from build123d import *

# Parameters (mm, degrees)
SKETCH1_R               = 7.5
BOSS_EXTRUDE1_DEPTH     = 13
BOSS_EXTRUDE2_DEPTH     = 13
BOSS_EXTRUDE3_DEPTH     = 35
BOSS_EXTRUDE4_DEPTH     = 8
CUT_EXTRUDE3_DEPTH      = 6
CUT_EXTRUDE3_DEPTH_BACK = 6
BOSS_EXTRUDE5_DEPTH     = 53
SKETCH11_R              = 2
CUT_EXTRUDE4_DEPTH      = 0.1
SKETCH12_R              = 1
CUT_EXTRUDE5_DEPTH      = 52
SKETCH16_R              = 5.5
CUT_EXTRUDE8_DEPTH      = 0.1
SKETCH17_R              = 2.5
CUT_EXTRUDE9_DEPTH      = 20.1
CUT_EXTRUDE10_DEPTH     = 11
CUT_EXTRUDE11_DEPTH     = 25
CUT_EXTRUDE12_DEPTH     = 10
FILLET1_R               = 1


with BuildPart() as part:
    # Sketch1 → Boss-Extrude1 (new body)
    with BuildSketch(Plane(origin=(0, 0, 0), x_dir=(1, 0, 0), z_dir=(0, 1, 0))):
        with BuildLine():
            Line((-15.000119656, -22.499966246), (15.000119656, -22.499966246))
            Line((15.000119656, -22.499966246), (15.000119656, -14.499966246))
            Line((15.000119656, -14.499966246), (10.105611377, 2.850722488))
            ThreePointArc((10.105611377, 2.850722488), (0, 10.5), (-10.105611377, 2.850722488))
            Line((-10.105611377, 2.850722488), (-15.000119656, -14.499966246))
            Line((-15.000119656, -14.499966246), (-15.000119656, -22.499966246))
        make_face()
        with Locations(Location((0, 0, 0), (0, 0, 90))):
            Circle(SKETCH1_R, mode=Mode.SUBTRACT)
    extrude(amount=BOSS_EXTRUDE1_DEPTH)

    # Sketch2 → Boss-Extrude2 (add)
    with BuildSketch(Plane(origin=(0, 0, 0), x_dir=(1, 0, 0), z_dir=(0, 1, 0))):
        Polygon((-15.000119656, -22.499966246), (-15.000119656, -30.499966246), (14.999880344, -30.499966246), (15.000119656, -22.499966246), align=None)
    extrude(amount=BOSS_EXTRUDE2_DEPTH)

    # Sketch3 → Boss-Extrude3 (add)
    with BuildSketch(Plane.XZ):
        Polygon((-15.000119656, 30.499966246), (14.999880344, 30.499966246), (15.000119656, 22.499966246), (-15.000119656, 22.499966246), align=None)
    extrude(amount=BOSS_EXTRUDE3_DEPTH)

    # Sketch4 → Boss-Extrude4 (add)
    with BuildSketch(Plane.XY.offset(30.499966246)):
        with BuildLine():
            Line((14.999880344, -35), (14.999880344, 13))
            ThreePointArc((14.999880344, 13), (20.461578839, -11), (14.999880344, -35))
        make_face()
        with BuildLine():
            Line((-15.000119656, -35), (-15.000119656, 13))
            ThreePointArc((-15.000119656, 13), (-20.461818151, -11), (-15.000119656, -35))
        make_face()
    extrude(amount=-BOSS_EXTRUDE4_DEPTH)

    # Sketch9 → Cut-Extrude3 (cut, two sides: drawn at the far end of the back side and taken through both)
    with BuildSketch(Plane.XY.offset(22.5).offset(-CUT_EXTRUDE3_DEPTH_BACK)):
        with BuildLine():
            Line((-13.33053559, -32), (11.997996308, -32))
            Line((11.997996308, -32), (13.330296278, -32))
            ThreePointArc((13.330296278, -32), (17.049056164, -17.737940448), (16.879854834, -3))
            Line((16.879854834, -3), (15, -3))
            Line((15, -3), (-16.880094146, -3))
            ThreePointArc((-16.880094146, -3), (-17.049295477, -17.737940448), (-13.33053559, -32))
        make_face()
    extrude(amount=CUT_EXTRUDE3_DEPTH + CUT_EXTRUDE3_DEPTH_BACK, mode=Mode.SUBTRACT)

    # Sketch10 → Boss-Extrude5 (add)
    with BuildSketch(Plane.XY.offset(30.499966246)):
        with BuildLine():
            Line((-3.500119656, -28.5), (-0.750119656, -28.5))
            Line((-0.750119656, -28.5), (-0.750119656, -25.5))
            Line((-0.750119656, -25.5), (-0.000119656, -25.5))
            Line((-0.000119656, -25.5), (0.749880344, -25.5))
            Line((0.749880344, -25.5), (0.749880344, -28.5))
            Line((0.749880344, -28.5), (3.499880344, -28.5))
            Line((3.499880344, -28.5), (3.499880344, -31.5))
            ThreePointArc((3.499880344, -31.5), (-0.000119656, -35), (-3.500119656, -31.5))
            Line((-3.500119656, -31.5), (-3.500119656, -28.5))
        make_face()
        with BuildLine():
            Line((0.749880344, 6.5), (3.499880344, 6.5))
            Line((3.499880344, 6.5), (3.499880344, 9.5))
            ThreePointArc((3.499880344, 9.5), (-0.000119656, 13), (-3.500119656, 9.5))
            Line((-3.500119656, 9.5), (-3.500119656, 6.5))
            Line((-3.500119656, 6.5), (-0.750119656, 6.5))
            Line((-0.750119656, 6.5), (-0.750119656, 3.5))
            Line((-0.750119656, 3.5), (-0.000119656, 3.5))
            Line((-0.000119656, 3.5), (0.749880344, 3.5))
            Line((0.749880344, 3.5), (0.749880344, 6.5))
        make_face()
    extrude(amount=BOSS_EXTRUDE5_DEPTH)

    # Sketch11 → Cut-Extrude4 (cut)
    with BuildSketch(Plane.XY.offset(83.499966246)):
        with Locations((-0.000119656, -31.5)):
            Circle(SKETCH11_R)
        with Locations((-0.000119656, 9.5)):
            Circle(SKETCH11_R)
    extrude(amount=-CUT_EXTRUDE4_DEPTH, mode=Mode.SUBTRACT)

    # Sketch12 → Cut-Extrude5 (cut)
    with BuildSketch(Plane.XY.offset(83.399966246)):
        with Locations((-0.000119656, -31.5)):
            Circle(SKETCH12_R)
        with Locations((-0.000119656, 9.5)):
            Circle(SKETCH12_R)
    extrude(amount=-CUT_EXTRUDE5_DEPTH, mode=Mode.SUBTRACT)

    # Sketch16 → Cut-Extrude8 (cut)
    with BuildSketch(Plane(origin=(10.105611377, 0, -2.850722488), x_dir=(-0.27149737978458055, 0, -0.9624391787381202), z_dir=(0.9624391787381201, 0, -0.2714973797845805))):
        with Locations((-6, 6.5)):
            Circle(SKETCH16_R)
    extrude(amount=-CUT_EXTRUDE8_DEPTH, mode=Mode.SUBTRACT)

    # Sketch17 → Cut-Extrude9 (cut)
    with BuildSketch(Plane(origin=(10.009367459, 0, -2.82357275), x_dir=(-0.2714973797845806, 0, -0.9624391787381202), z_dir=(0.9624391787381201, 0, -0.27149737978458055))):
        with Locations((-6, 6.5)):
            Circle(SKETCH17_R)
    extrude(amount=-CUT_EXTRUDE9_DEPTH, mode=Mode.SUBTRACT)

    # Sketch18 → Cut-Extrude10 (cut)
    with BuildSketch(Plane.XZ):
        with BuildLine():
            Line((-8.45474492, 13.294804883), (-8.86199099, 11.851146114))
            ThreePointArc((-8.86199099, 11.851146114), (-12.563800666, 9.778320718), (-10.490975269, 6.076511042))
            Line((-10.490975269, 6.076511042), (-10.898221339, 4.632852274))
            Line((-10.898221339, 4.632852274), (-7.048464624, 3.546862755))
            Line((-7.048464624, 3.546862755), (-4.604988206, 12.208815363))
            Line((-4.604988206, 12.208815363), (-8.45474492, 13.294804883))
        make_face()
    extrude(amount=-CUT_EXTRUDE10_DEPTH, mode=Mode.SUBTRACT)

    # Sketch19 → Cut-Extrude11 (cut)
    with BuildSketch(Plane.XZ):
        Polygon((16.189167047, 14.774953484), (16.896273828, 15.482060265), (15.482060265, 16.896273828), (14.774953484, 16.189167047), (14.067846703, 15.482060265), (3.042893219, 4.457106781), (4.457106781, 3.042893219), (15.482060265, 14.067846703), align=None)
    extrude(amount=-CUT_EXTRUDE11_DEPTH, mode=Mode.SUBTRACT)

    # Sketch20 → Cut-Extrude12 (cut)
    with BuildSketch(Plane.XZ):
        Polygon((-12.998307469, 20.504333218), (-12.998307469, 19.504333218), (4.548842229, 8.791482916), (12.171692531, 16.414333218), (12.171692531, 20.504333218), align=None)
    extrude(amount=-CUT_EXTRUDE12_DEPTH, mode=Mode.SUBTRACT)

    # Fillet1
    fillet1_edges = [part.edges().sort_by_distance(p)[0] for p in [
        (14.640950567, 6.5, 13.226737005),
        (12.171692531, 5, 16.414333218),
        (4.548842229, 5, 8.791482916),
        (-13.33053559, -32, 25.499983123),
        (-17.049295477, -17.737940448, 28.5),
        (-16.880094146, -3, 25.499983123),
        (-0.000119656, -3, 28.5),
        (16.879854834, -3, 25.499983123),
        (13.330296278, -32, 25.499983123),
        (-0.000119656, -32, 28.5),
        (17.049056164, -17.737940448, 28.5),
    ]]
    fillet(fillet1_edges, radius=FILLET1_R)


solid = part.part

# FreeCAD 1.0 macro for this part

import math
import FreeCAD as App
import Part
import Sketcher
from FreeCAD import Vector
Q = App.Units.Quantity


def edges_at(feature, points):
    """Names of the edges that pass closest to the given points."""
    edges = feature.Shape.Edges
    near = lambda p: min(range(len(edges)), key=lambda i: edges[i].distToShape(Part.Vertex(*p))[0])
    return sorted({f"Edge{near(p) + 1}" for p in points})

doc = App.newDocument("Part")
body = doc.addObject("PartDesign::Body", "Body")

# Sketch on XZ plane
sketch1 = body.newObject("Sketcher::SketchObject", "Sketch")
sketch1.AttachmentSupport = (doc.getObject("XZ_Plane"), [""])
sketch1.MapMode = "FlatFace"
sketch1.addGeometry([
    Part.LineSegment(Vector(-15, 22, 0), Vector(15, 22, 0)),  # 0
    Part.LineSegment(Vector(15, 22, 0), Vector(15, 14, 0)),  # 1
    Part.LineSegment(Vector(15, 14, 0), Vector(10, -3, 0)),  # 2
    Part.ArcOfCircle(Part.Circle(Vector(0, 0, 0), Vector(0, 0, 1), 10), math.radians(-164), math.radians(-16)),  # 3
    Part.LineSegment(Vector(-10, -3, 0), Vector(-15, 14, 0)),  # 4
    Part.LineSegment(Vector(-15, 14, 0), Vector(-15, 22, 0)),  # 5
    Part.Circle(Vector(0, 0, 0), Vector(0, 0, 1), 8),  # 6
], False)
sketch1.addConstraint([
    Sketcher.Constraint("Coincident", 0, 2, 1, 1),
    Sketcher.Constraint("Coincident", 1, 2, 2, 1),
    Sketcher.Constraint("Tangent", 2, 2, 3, 2),
    Sketcher.Constraint("Tangent", 3, 1, 4, 1),
    Sketcher.Constraint("Coincident", 4, 2, 5, 1),
    Sketcher.Constraint("Coincident", 5, 2, 0, 1),
    Sketcher.Constraint("Horizontal", 0),
    Sketcher.Constraint("Vertical", 1),
    Sketcher.Constraint("Vertical", 5),
    Sketcher.Constraint("Coincident", 3, 3, -1, 1),
    Sketcher.Constraint("Coincident", 6, 3, -1, 1),
    Sketcher.Constraint("Symmetric", 1, 2, 4, 2, -2),
    Sketcher.Constraint("Diameter", 6, Q("15 mm")),
    Sketcher.Constraint("Radius", 3, Q("10.5 mm")),
    Sketcher.Constraint("DistanceY", 1, 2, 1, 1, Q("8 mm")),
    Sketcher.Constraint("DistanceX", 0, 1, 0, 2, Q("30.000239 mm")),
    Sketcher.Constraint("Distance", 2, Q("18.027829 mm")),
])
pad1 = body.newObject("PartDesign::Pad", "Pad")
pad1.Profile = sketch1
pad1.Length = 13
pad1.Reversed = True

# Sketch on XZ plane
sketch2 = body.newObject("Sketcher::SketchObject", "Sketch001")
sketch2.AttachmentSupport = (doc.getObject("XZ_Plane"), [""])
sketch2.MapMode = "FlatFace"
sketch2.addGeometry([
    Part.LineSegment(Vector(-15, 22, 0), Vector(-15, 30, 0)),
    Part.LineSegment(Vector(-15, 30, 0), Vector(15, 30, 0)),
    Part.LineSegment(Vector(15, 30, 0), Vector(15, 22, 0)),
    Part.LineSegment(Vector(15, 22, 0), Vector(-15, 22, 0)),
], False)
sketch2.addConstraint([
    Sketcher.Constraint("Coincident", 0, 2, 1, 1),
    Sketcher.Constraint("Coincident", 1, 2, 2, 1),
    Sketcher.Constraint("Coincident", 2, 2, 3, 1),
    Sketcher.Constraint("Coincident", 3, 2, 0, 1),
    Sketcher.Constraint("Vertical", 0),
    Sketcher.Constraint("Horizontal", 1),
    Sketcher.Constraint("Horizontal", 3),
    Sketcher.Constraint("DistanceX", 1, 1, 1, 2, Q("30 mm")),
    Sketcher.Constraint("DistanceY", 0, 1, 0, 2, Q("8 mm")),
    Sketcher.Constraint("DistanceX", 3, 2, 3, 1, Q("30.000239 mm")),
    Sketcher.Constraint("DistanceX", 0, 2, -1, 1, Q("15.00012 mm")),
    Sketcher.Constraint("DistanceY", -1, 1, 0, 2, Q("30.499966 mm")),
])
pad2 = body.newObject("PartDesign::Pad", "Pad001")
pad2.Profile = sketch2
pad2.Length = 13
pad2.Reversed = True

# Sketch on XZ plane
sketch3 = body.newObject("Sketcher::SketchObject", "Sketch002")
sketch3.AttachmentSupport = (doc.getObject("XZ_Plane"), [""])
sketch3.MapMode = "FlatFace"
sketch3.addGeometry([
    Part.LineSegment(Vector(15, 30, 0), Vector(-15, 30, 0)),
    Part.LineSegment(Vector(-15, 30, 0), Vector(-15, 22, 0)),
    Part.LineSegment(Vector(-15, 22, 0), Vector(15, 22, 0)),
    Part.LineSegment(Vector(15, 22, 0), Vector(15, 30, 0)),
], False)
sketch3.addConstraint([
    Sketcher.Constraint("Coincident", 0, 2, 1, 1),
    Sketcher.Constraint("Coincident", 1, 2, 2, 1),
    Sketcher.Constraint("Coincident", 2, 2, 3, 1),
    Sketcher.Constraint("Coincident", 3, 2, 0, 1),
    Sketcher.Constraint("Horizontal", 0),
    Sketcher.Constraint("Vertical", 1),
    Sketcher.Constraint("Horizontal", 2),
    Sketcher.Constraint("DistanceX", 0, 2, 0, 1, Q("30 mm")),
    Sketcher.Constraint("DistanceY", 1, 2, 1, 1, Q("8 mm")),
    Sketcher.Constraint("DistanceX", 2, 1, 2, 2, Q("30.000239 mm")),
    Sketcher.Constraint("DistanceX", 0, 2, -1, 1, Q("15.00012 mm")),
    Sketcher.Constraint("DistanceY", -1, 1, 0, 2, Q("30.499966 mm")),
])
pad3 = body.newObject("PartDesign::Pad", "Pad002")
pad3.Profile = sketch3
pad3.Length = 35

# Sketch on XY plane
sketch4 = body.newObject("Sketcher::SketchObject", "Sketch003")
sketch4.AttachmentSupport = (doc.getObject("XY_Plane"), [""])
sketch4.MapMode = "FlatFace"
sketch4.AttachmentOffset = App.Placement(Vector(0, 0, 30.499966), App.Rotation())
sketch4.addGeometry([
    Part.LineSegment(Vector(15, 13, 0), Vector(15, -35, 0)),
    Part.ArcOfCircle(Part.Circle(Vector(-35, -11, 0), Vector(0, 0, 1), 55), math.radians(-26), math.radians(26)),
    Part.LineSegment(Vector(-15, -35, 0), Vector(-15, 13, 0)),
    Part.ArcOfCircle(Part.Circle(Vector(35, -11, 0), Vector(0, 0, 1), 55), math.radians(154), math.radians(206)),
], False)
sketch4.addConstraint([
    Sketcher.Constraint("Coincident", 0, 1, 1, 2),
    Sketcher.Constraint("Coincident", 1, 1, 0, 2),
    Sketcher.Constraint("Coincident", 2, 1, 3, 2),
    Sketcher.Constraint("Coincident", 3, 1, 2, 2),
    Sketcher.Constraint("Vertical", 0),
    Sketcher.Constraint("Vertical", 2),
    Sketcher.Constraint("Equal", 1, 3),
    Sketcher.Constraint("Horizontal", 1, 3, 3, 3),
    Sketcher.Constraint("Horizontal", 1, 1, 2, 1),
    Sketcher.Constraint("DistanceY", 0, 2, 0, 1, Q("48 mm")),
    Sketcher.Constraint("DistanceY", 1, 3, -1, 1, Q("11 mm")),
    Sketcher.Constraint("DistanceX", 1, 3, 3, 3, Q("70 mm")),
    Sketcher.Constraint("DistanceX", 0, 1, 3, 3, Q("20 mm")),
    Sketcher.Constraint("DistanceX", 1, 3, -1, 1, Q("35.00012 mm")),
])
pad4 = body.newObject("PartDesign::Pad", "Pad003")
pad4.Profile = sketch4
pad4.Length = 8
pad4.Reversed = True

# Sketch on XY plane
sketch5 = body.newObject("Sketcher::SketchObject", "Sketch004")
sketch5.AttachmentSupport = (doc.getObject("XY_Plane"), [""])
sketch5.MapMode = "FlatFace"
sketch5.AttachmentOffset = App.Placement(Vector(0, 0, 22.5), App.Rotation())
sketch5.addGeometry([
    Part.LineSegment(Vector(-13, -32, 0), Vector(13, -32, 0)),
    Part.ArcOfCircle(Part.Circle(Vector(-38, -11, 0), Vector(0, 0, 1), 55), math.radians(-22), math.radians(8)),
    Part.LineSegment(Vector(17, -3, 0), Vector(-17, -3, 0)),
    Part.ArcOfCircle(Part.Circle(Vector(38, -11, 0), Vector(0, 0, 1), 55), math.radians(172), math.radians(202)),
], False)
sketch5.addConstraint([
    Sketcher.Constraint("Coincident", 0, 2, 1, 1),
    Sketcher.Constraint("Coincident", 1, 2, 2, 1),
    Sketcher.Constraint("Coincident", 2, 2, 3, 1),
    Sketcher.Constraint("Coincident", 3, 2, 0, 1),
    Sketcher.Constraint("Horizontal", 0),
    Sketcher.Constraint("Horizontal", 2),
    Sketcher.Constraint("Equal", 1, 3),
    Sketcher.Constraint("Horizontal", 1, 3, 3, 3),
    Sketcher.Constraint("Radius", 1, Q("55.46 mm")),
    Sketcher.Constraint("DistanceY", 1, 3, -1, 1, Q("11 mm")),
    Sketcher.Constraint("DistanceY", 0, 2, -1, 1, Q("32 mm")),
    Sketcher.Constraint("DistanceY", 1, 2, -1, 1, Q("3 mm")),
    Sketcher.Constraint("DistanceX", 1, 3, 3, 3, Q("76 mm")),
    Sketcher.Constraint("DistanceX", 1, 3, -1, 1, Q("38.00012 mm")),
])
pocket1 = body.newObject("PartDesign::Pocket", "Pocket")
pocket1.Profile = sketch5
pocket1.Type = "TwoLengths"
pocket1.Length = 6
pocket1.Length2 = 6
pocket1.Reversed = True

# Sketch on XY plane
sketch6 = body.newObject("Sketcher::SketchObject", "Sketch005")
sketch6.AttachmentSupport = (doc.getObject("XY_Plane"), [""])
sketch6.MapMode = "FlatFace"
sketch6.AttachmentOffset = App.Placement(Vector(0, 0, 30.499966), App.Rotation())
sketch6.addGeometry([
    Part.LineSegment(Vector(-0.8, -28.5, 0), Vector(-3.5, -28.5, 0)),  # 0
    Part.LineSegment(Vector(-3.5, -28.5, 0), Vector(-3.5, -31.5, 0)),  # 1
    Part.ArcOfCircle(Part.Circle(Vector(0, -31.5, 0), Vector(0, 0, 1), 3.5), math.radians(180), math.radians(360)),  # 2
    Part.LineSegment(Vector(3.5, -31.5, 0), Vector(3.5, -28.5, 0)),  # 3
    Part.LineSegment(Vector(3.5, -28.5, 0), Vector(0.7, -28.5, 0)),  # 4
    Part.LineSegment(Vector(0.7, -28.5, 0), Vector(0.7, -25.5, 0)),  # 5
    Part.LineSegment(Vector(0.7, -25.5, 0), Vector(-0.8, -25.5, 0)),  # 6
    Part.LineSegment(Vector(-0.8, -25.5, 0), Vector(-0.8, -28.5, 0)),  # 7
    Part.LineSegment(Vector(0.7, 6.5, 0), Vector(3.5, 6.5, 0)),  # 8
    Part.LineSegment(Vector(3.5, 6.5, 0), Vector(3.5, 9.5, 0)),  # 9
    Part.ArcOfCircle(Part.Circle(Vector(0, 9.5, 0), Vector(0, 0, 1), 3.5), math.radians(0), math.radians(180)),  # 10
    Part.LineSegment(Vector(-3.5, 9.5, 0), Vector(-3.5, 6.5, 0)),  # 11
    Part.LineSegment(Vector(-3.5, 6.5, 0), Vector(-0.8, 6.5, 0)),  # 12
    Part.LineSegment(Vector(-0.8, 6.5, 0), Vector(-0.8, 3.5, 0)),  # 13
    Part.LineSegment(Vector(-0.8, 3.5, 0), Vector(0.7, 3.5, 0)),  # 14
    Part.LineSegment(Vector(0.7, 3.5, 0), Vector(0.7, 6.5, 0)),  # 15
], False)
sketch6.addConstraint([
    Sketcher.Constraint("Coincident", 0, 2, 1, 1),
    Sketcher.Constraint("Tangent", 1, 2, 2, 1),
    Sketcher.Constraint("Tangent", 2, 2, 3, 1),
    Sketcher.Constraint("Coincident", 3, 2, 4, 1),
    Sketcher.Constraint("Coincident", 4, 2, 5, 1),
    Sketcher.Constraint("Coincident", 5, 2, 6, 1),
    Sketcher.Constraint("Coincident", 6, 2, 7, 1),
    Sketcher.Constraint("Coincident", 7, 2, 0, 1),
    Sketcher.Constraint("Coincident", 8, 2, 9, 1),
    Sketcher.Constraint("Tangent", 9, 2, 10, 1),
    Sketcher.Constraint("Tangent", 10, 2, 11, 1),
    Sketcher.Constraint("Coincident", 11, 2, 12, 1),
    Sketcher.Constraint("Coincident", 12, 2, 13, 1),
    Sketcher.Constraint("Coincident", 13, 2, 14, 1),
    Sketcher.Constraint("Coincident", 14, 2, 15, 1),
    Sketcher.Constraint("Coincident", 15, 2, 8, 1),
    Sketcher.Constraint("Horizontal", 0),
    Sketcher.Constraint("Vertical", 1),
    Sketcher.Constraint("Vertical", 3),
    Sketcher.Constraint("Horizontal", 4),
    Sketcher.Constraint("Vertical", 5),
    Sketcher.Constraint("Horizontal", 6),
    Sketcher.Constraint("Vertical", 7),
    Sketcher.Constraint("Horizontal", 8),
    Sketcher.Constraint("Vertical", 9),
    Sketcher.Constraint("Vertical", 11),
    Sketcher.Constraint("Horizontal", 12),
    Sketcher.Constraint("Vertical", 13),
    Sketcher.Constraint("Horizontal", 14),
    Sketcher.Constraint("Vertical", 15),
    Sketcher.Constraint("Equal", 2, 10),
    Sketcher.Constraint("Horizontal", 0, 2, 3, 2),
    Sketcher.Constraint("Horizontal", 8, 2, 11, 2),
    Sketcher.Constraint("Vertical", 2, 3, 10, 3),
    Sketcher.Constraint("Vertical", 7, 2, 12, 2),
    Sketcher.Constraint("Vertical", 5, 2, 14, 2),
    Sketcher.Constraint("Equal", 0, 4),
    Sketcher.Constraint("Equal", 3, 5),
    Sketcher.Constraint("Equal", 7, 9),
    Sketcher.Constraint("Equal", 11, 13),
    Sketcher.Constraint("Radius", 2, Q("3.5 mm")),
    Sketcher.Constraint("DistanceY", 1, 2, 1, 1, Q("3 mm")),
    Sketcher.Constraint("DistanceX", 6, 2, 6, 1, Q("1.5 mm")),
    Sketcher.Constraint("DistanceY", 2, 3, 10, 3, Q("41 mm")),
    Sketcher.Constraint("DistanceY", 2, 3, -1, 1, Q("31.5 mm")),
    Sketcher.Constraint("DistanceX", 2, 3, -1, 1, Q("0.00012 mm")),
])
pad5 = body.newObject("PartDesign::Pad", "Pad004")
pad5.Profile = sketch6
pad5.Length = 53

# Sketch on XY plane
sketch7 = body.newObject("Sketcher::SketchObject", "Sketch006")
sketch7.AttachmentSupport = (doc.getObject("XY_Plane"), [""])
sketch7.MapMode = "FlatFace"
sketch7.AttachmentOffset = App.Placement(Vector(0, 0, 83.499966), App.Rotation())
sketch7.addGeometry([
    Part.Circle(Vector(0, -31.5, 0), Vector(0, 0, 1), 2),
    Part.Circle(Vector(0, 9.5, 0), Vector(0, 0, 1), 2),
], False)
sketch7.addConstraint([
    Sketcher.Constraint("Equal", 0, 1),
    Sketcher.Constraint("Vertical", 0, 3, 1, 3),
    Sketcher.Constraint("Diameter", 0, Q("4 mm")),
    Sketcher.Constraint("DistanceY", 0, 3, 1, 3, Q("41 mm")),
    Sketcher.Constraint("DistanceY", 0, 3, -1, 1, Q("31.5 mm")),
    Sketcher.Constraint("DistanceX", 0, 3, -1, 1, Q("0.00012 mm")),
])
pocket2 = body.newObject("PartDesign::Pocket", "Pocket001")
pocket2.Profile = sketch7
pocket2.Length = 0.1

# Sketch on XY plane
sketch8 = body.newObject("Sketcher::SketchObject", "Sketch007")
sketch8.AttachmentSupport = (doc.getObject("XY_Plane"), [""])
sketch8.MapMode = "FlatFace"
sketch8.AttachmentOffset = App.Placement(Vector(0, 0, 83.399966), App.Rotation())
sketch8.addGeometry([
    Part.Circle(Vector(0, -31.5, 0), Vector(0, 0, 1), 1),
    Part.Circle(Vector(0, 9.5, 0), Vector(0, 0, 1), 1),
], False)
sketch8.addConstraint([
    Sketcher.Constraint("Equal", 0, 1),
    Sketcher.Constraint("Vertical", 0, 3, 1, 3),
    Sketcher.Constraint("Diameter", 0, Q("2 mm")),
    Sketcher.Constraint("DistanceY", 0, 3, 1, 3, Q("41 mm")),
    Sketcher.Constraint("DistanceY", 0, 3, -1, 1, Q("31.5 mm")),
    Sketcher.Constraint("DistanceX", 0, 3, -1, 1, Q("0.00012 mm")),
])
pocket3 = body.newObject("PartDesign::Pocket", "Pocket002")
pocket3.Profile = sketch8
pocket3.Length = 52

# Sketch on an angled plane
sketch9 = body.newObject("Sketcher::SketchObject", "Sketch008")
sketch9.Placement = App.Placement(Vector(10.105611, 0, -2.850722), App.Rotation(Vector(-0.27149738, 0, -0.962439179), Vector(0, 1.000000001, 0), Vector(0.962439179, 0, -0.27149738), "ZXY"))
sketch9.addGeometry(Part.Circle(Vector(-6, 7, 0), Vector(0, 0, 1), 6), False)
sketch9.addConstraint([
    Sketcher.Constraint("Diameter", 0, Q("11 mm")),
    Sketcher.Constraint("DistanceX", 0, 3, -1, 1, Q("6 mm")),
    Sketcher.Constraint("DistanceY", -1, 1, 0, 3, Q("6.5 mm")),
])
pocket4 = body.newObject("PartDesign::Pocket", "Pocket003")
pocket4.Profile = sketch9
pocket4.Length = 0.1

# Sketch on an angled plane
sketch10 = body.newObject("Sketcher::SketchObject", "Sketch009")
sketch10.Placement = App.Placement(Vector(10.009367, 0, -2.823573), App.Rotation(Vector(-0.27149738, 0, -0.962439179), Vector(0, 1.000000001, 0), Vector(0.962439179, 0, -0.27149738), "ZXY"))
sketch10.addGeometry(Part.Circle(Vector(-6, 6.5, 0), Vector(0, 0, 1), 2.5), False)
sketch10.addConstraint([
    Sketcher.Constraint("Diameter", 0, Q("5 mm")),
    Sketcher.Constraint("DistanceX", 0, 3, -1, 1, Q("6 mm")),
    Sketcher.Constraint("DistanceY", -1, 1, 0, 3, Q("6.5 mm")),
])
pocket5 = body.newObject("PartDesign::Pocket", "Pocket004")
pocket5.Profile = sketch10
pocket5.Length = 20.1

# Sketch on XZ plane
sketch11 = body.newObject("Sketcher::SketchObject", "Sketch010")
sketch11.AttachmentSupport = (doc.getObject("XZ_Plane"), [""])
sketch11.MapMode = "FlatFace"
sketch11.addGeometry([
    Part.LineSegment(Vector(-8.5, 13.3, 0), Vector(-8.9, 11.9, 0)),  # 0
    Part.ArcOfCircle(Part.Circle(Vector(-9.7, 9, 0), Vector(0, 0, 1), 3), math.radians(74), math.radians(254)),  # 1
    Part.LineSegment(Vector(-10.5, 6.1, 0), Vector(-10.9, 4.6, 0)),  # 2
    Part.LineSegment(Vector(-10.9, 4.6, 0), Vector(-7, 3.5, 0)),  # 3
    Part.LineSegment(Vector(-7, 3.5, 0), Vector(-4.6, 12.2, 0)),  # 4
    Part.LineSegment(Vector(-4.6, 12.2, 0), Vector(-8.5, 13.3, 0)),  # 5
], False)
sketch11.addConstraint([
    Sketcher.Constraint("Coincident", 0, 2, 1, 1),
    Sketcher.Constraint("Coincident", 1, 2, 2, 1),
    Sketcher.Constraint("Coincident", 2, 2, 3, 1),
    Sketcher.Constraint("Coincident", 3, 2, 4, 1),
    Sketcher.Constraint("Coincident", 4, 2, 5, 1),
    Sketcher.Constraint("Coincident", 5, 2, 0, 1),
    Sketcher.Constraint("Parallel", 0, 2),
    Sketcher.Constraint("Perpendicular", 2, 3),
    Sketcher.Constraint("Perpendicular", 3, 4),
    Sketcher.Constraint("Perpendicular", 4, 5),
    Sketcher.Constraint("Equal", 0, 2),
    Sketcher.Constraint("Equal", 3, 5),
    Sketcher.Constraint("Radius", 1, Q("3 mm")),
    Sketcher.Constraint("Distance", 3, Q("4 mm")),
    Sketcher.Constraint("Distance", 4, Q("9 mm")),
    Sketcher.Constraint("DistanceY", -1, 1, 1, 3, Q("8.963829 mm")),
    Sketcher.Constraint("DistanceX", 0, 2, -1, 1, Q("8.861991 mm")),
    Sketcher.Constraint("DistanceY", -1, 1, 1, 2, Q("6.076511 mm")),
    Sketcher.Constraint("DistanceX", 2, 2, -1, 1, Q("10.898221 mm")),
])
pocket6 = body.newObject("PartDesign::Pocket", "Pocket005")
pocket6.Profile = sketch11
pocket6.Length = 11

# Sketch on XZ plane
sketch12 = body.newObject("Sketcher::SketchObject", "Sketch011")
sketch12.AttachmentSupport = (doc.getObject("XZ_Plane"), [""])
sketch12.MapMode = "FlatFace"
sketch12.addGeometry([
    Part.LineSegment(Vector(16.2, 14.8, 0), Vector(16.9, 15.5, 0)),  # 0
    Part.LineSegment(Vector(16.9, 15.5, 0), Vector(15.5, 16.9, 0)),  # 1
    Part.LineSegment(Vector(15.5, 16.9, 0), Vector(14.8, 16.2, 0)),  # 2
    Part.LineSegment(Vector(14.8, 16.2, 0), Vector(14.1, 15.5, 0)),  # 3
    Part.LineSegment(Vector(14.1, 15.5, 0), Vector(3, 4.5, 0)),  # 4
    Part.LineSegment(Vector(3, 4.5, 0), Vector(4.5, 3, 0)),  # 5
    Part.LineSegment(Vector(4.5, 3, 0), Vector(15.5, 14.1, 0)),  # 6
    Part.LineSegment(Vector(15.5, 14.1, 0), Vector(16.2, 14.8, 0)),  # 7
], False)
sketch12.addConstraint([
    Sketcher.Constraint("Coincident", 0, 2, 1, 1),
    Sketcher.Constraint("Coincident", 1, 2, 2, 1),
    Sketcher.Constraint("Coincident", 2, 2, 3, 1),
    Sketcher.Constraint("Coincident", 3, 2, 4, 1),
    Sketcher.Constraint("Coincident", 4, 2, 5, 1),
    Sketcher.Constraint("Coincident", 5, 2, 6, 1),
    Sketcher.Constraint("Coincident", 6, 2, 7, 1),
    Sketcher.Constraint("Coincident", 7, 2, 0, 1),
    Sketcher.Constraint("Perpendicular", 0, 1),
    Sketcher.Constraint("Perpendicular", 1, 2),
    Sketcher.Constraint("Parallel", 2, 3),
    Sketcher.Constraint("Parallel", 3, 4),
    Sketcher.Constraint("Perpendicular", 4, 5),
    Sketcher.Constraint("Perpendicular", 5, 6),
    Sketcher.Constraint("Parallel", 6, 7),
    Sketcher.Constraint("Horizontal", 0, 2, 3, 2),
    Sketcher.Constraint("Vertical", 1, 2, 6, 2),
    Sketcher.Constraint("Equal", 0, 2),
    Sketcher.Constraint("Equal", 2, 3),
    Sketcher.Constraint("Equal", 4, 6),
    Sketcher.Constraint("Distance", 0, Q("1 mm")),
    Sketcher.Constraint("Distance", 4, Q("15.591639 mm")),
    Sketcher.Constraint("DistanceY", -1, 1, 0, 2, Q("15.48206 mm")),
    Sketcher.Constraint("DistanceX", -1, 1, 1, 2, Q("15.48206 mm")),
])
pocket7 = body.newObject("PartDesign::Pocket", "Pocket006")
pocket7.Profile = sketch12
pocket7.Length = 25

# Sketch on XZ plane
sketch13 = body.newObject("Sketcher::SketchObject", "Sketch012")
sketch13.AttachmentSupport = (doc.getObject("XZ_Plane"), [""])
sketch13.MapMode = "FlatFace"
sketch13.addGeometry([
    Part.LineSegment(Vector(-13, 20.5, 0), Vector(-13, 19.5, 0)),  # 0
    Part.LineSegment(Vector(-13, 19.5, 0), Vector(4.5, 8.8, 0)),  # 1
    Part.LineSegment(Vector(4.5, 8.8, 0), Vector(12.2, 16.4, 0)),  # 2
    Part.LineSegment(Vector(12.2, 16.4, 0), Vector(12.2, 20.5, 0)),  # 3
    Part.LineSegment(Vector(12.2, 20.5, 0), Vector(-13, 20.5, 0)),  # 4
], False)
sketch13.addConstraint([
    Sketcher.Constraint("Coincident", 0, 2, 1, 1),
    Sketcher.Constraint("Coincident", 1, 2, 2, 1),
    Sketcher.Constraint("Coincident", 2, 2, 3, 1),
    Sketcher.Constraint("Coincident", 3, 2, 4, 1),
    Sketcher.Constraint("Coincident", 4, 2, 0, 1),
    Sketcher.Constraint("Vertical", 0),
    Sketcher.Constraint("Vertical", 3),
    Sketcher.Constraint("Horizontal", 4),
    Sketcher.Constraint("DistanceY", 0, 2, 0, 1, Q("1 mm")),
    Sketcher.Constraint("Angle", 2, Q("45 deg")),
    Sketcher.Constraint("DistanceX", 4, 2, 4, 1, Q("25.17 mm")),
    Sketcher.Constraint("DistanceY", 3, 1, 3, 2, Q("4.09 mm")),
    Sketcher.Constraint("Distance", 1, Q("20.558882 mm")),
    Sketcher.Constraint("DistanceX", 0, 2, -1, 1, Q("12.998307 mm")),
    Sketcher.Constraint("DistanceY", -1, 1, 0, 2, Q("19.504333 mm")),
])
pocket8 = body.newObject("PartDesign::Pocket", "Pocket007")
pocket8.Profile = sketch13
pocket8.Length = 10
doc.recompute()

fillet = body.newObject("PartDesign::Fillet", "Fillet")
fillet.Base = (pocket8, edges_at(pocket8, [
    (14.641, 6.5, 13.227),
    (12.172, 5, 16.414),
    (4.549, 5, 8.791),
    (-13.331, -32, 25.5),
    (-17.049, -17.738, 28.5),
    (-16.88, -3, 25.5),
    (0, -3, 28.5),
    (16.88, -3, 25.5),
    (13.33, -32, 25.5),
    (0, -32, 28.5),
    (17.049, -17.738, 28.5),
]))
fillet.Radius = 1

doc.recompute()
